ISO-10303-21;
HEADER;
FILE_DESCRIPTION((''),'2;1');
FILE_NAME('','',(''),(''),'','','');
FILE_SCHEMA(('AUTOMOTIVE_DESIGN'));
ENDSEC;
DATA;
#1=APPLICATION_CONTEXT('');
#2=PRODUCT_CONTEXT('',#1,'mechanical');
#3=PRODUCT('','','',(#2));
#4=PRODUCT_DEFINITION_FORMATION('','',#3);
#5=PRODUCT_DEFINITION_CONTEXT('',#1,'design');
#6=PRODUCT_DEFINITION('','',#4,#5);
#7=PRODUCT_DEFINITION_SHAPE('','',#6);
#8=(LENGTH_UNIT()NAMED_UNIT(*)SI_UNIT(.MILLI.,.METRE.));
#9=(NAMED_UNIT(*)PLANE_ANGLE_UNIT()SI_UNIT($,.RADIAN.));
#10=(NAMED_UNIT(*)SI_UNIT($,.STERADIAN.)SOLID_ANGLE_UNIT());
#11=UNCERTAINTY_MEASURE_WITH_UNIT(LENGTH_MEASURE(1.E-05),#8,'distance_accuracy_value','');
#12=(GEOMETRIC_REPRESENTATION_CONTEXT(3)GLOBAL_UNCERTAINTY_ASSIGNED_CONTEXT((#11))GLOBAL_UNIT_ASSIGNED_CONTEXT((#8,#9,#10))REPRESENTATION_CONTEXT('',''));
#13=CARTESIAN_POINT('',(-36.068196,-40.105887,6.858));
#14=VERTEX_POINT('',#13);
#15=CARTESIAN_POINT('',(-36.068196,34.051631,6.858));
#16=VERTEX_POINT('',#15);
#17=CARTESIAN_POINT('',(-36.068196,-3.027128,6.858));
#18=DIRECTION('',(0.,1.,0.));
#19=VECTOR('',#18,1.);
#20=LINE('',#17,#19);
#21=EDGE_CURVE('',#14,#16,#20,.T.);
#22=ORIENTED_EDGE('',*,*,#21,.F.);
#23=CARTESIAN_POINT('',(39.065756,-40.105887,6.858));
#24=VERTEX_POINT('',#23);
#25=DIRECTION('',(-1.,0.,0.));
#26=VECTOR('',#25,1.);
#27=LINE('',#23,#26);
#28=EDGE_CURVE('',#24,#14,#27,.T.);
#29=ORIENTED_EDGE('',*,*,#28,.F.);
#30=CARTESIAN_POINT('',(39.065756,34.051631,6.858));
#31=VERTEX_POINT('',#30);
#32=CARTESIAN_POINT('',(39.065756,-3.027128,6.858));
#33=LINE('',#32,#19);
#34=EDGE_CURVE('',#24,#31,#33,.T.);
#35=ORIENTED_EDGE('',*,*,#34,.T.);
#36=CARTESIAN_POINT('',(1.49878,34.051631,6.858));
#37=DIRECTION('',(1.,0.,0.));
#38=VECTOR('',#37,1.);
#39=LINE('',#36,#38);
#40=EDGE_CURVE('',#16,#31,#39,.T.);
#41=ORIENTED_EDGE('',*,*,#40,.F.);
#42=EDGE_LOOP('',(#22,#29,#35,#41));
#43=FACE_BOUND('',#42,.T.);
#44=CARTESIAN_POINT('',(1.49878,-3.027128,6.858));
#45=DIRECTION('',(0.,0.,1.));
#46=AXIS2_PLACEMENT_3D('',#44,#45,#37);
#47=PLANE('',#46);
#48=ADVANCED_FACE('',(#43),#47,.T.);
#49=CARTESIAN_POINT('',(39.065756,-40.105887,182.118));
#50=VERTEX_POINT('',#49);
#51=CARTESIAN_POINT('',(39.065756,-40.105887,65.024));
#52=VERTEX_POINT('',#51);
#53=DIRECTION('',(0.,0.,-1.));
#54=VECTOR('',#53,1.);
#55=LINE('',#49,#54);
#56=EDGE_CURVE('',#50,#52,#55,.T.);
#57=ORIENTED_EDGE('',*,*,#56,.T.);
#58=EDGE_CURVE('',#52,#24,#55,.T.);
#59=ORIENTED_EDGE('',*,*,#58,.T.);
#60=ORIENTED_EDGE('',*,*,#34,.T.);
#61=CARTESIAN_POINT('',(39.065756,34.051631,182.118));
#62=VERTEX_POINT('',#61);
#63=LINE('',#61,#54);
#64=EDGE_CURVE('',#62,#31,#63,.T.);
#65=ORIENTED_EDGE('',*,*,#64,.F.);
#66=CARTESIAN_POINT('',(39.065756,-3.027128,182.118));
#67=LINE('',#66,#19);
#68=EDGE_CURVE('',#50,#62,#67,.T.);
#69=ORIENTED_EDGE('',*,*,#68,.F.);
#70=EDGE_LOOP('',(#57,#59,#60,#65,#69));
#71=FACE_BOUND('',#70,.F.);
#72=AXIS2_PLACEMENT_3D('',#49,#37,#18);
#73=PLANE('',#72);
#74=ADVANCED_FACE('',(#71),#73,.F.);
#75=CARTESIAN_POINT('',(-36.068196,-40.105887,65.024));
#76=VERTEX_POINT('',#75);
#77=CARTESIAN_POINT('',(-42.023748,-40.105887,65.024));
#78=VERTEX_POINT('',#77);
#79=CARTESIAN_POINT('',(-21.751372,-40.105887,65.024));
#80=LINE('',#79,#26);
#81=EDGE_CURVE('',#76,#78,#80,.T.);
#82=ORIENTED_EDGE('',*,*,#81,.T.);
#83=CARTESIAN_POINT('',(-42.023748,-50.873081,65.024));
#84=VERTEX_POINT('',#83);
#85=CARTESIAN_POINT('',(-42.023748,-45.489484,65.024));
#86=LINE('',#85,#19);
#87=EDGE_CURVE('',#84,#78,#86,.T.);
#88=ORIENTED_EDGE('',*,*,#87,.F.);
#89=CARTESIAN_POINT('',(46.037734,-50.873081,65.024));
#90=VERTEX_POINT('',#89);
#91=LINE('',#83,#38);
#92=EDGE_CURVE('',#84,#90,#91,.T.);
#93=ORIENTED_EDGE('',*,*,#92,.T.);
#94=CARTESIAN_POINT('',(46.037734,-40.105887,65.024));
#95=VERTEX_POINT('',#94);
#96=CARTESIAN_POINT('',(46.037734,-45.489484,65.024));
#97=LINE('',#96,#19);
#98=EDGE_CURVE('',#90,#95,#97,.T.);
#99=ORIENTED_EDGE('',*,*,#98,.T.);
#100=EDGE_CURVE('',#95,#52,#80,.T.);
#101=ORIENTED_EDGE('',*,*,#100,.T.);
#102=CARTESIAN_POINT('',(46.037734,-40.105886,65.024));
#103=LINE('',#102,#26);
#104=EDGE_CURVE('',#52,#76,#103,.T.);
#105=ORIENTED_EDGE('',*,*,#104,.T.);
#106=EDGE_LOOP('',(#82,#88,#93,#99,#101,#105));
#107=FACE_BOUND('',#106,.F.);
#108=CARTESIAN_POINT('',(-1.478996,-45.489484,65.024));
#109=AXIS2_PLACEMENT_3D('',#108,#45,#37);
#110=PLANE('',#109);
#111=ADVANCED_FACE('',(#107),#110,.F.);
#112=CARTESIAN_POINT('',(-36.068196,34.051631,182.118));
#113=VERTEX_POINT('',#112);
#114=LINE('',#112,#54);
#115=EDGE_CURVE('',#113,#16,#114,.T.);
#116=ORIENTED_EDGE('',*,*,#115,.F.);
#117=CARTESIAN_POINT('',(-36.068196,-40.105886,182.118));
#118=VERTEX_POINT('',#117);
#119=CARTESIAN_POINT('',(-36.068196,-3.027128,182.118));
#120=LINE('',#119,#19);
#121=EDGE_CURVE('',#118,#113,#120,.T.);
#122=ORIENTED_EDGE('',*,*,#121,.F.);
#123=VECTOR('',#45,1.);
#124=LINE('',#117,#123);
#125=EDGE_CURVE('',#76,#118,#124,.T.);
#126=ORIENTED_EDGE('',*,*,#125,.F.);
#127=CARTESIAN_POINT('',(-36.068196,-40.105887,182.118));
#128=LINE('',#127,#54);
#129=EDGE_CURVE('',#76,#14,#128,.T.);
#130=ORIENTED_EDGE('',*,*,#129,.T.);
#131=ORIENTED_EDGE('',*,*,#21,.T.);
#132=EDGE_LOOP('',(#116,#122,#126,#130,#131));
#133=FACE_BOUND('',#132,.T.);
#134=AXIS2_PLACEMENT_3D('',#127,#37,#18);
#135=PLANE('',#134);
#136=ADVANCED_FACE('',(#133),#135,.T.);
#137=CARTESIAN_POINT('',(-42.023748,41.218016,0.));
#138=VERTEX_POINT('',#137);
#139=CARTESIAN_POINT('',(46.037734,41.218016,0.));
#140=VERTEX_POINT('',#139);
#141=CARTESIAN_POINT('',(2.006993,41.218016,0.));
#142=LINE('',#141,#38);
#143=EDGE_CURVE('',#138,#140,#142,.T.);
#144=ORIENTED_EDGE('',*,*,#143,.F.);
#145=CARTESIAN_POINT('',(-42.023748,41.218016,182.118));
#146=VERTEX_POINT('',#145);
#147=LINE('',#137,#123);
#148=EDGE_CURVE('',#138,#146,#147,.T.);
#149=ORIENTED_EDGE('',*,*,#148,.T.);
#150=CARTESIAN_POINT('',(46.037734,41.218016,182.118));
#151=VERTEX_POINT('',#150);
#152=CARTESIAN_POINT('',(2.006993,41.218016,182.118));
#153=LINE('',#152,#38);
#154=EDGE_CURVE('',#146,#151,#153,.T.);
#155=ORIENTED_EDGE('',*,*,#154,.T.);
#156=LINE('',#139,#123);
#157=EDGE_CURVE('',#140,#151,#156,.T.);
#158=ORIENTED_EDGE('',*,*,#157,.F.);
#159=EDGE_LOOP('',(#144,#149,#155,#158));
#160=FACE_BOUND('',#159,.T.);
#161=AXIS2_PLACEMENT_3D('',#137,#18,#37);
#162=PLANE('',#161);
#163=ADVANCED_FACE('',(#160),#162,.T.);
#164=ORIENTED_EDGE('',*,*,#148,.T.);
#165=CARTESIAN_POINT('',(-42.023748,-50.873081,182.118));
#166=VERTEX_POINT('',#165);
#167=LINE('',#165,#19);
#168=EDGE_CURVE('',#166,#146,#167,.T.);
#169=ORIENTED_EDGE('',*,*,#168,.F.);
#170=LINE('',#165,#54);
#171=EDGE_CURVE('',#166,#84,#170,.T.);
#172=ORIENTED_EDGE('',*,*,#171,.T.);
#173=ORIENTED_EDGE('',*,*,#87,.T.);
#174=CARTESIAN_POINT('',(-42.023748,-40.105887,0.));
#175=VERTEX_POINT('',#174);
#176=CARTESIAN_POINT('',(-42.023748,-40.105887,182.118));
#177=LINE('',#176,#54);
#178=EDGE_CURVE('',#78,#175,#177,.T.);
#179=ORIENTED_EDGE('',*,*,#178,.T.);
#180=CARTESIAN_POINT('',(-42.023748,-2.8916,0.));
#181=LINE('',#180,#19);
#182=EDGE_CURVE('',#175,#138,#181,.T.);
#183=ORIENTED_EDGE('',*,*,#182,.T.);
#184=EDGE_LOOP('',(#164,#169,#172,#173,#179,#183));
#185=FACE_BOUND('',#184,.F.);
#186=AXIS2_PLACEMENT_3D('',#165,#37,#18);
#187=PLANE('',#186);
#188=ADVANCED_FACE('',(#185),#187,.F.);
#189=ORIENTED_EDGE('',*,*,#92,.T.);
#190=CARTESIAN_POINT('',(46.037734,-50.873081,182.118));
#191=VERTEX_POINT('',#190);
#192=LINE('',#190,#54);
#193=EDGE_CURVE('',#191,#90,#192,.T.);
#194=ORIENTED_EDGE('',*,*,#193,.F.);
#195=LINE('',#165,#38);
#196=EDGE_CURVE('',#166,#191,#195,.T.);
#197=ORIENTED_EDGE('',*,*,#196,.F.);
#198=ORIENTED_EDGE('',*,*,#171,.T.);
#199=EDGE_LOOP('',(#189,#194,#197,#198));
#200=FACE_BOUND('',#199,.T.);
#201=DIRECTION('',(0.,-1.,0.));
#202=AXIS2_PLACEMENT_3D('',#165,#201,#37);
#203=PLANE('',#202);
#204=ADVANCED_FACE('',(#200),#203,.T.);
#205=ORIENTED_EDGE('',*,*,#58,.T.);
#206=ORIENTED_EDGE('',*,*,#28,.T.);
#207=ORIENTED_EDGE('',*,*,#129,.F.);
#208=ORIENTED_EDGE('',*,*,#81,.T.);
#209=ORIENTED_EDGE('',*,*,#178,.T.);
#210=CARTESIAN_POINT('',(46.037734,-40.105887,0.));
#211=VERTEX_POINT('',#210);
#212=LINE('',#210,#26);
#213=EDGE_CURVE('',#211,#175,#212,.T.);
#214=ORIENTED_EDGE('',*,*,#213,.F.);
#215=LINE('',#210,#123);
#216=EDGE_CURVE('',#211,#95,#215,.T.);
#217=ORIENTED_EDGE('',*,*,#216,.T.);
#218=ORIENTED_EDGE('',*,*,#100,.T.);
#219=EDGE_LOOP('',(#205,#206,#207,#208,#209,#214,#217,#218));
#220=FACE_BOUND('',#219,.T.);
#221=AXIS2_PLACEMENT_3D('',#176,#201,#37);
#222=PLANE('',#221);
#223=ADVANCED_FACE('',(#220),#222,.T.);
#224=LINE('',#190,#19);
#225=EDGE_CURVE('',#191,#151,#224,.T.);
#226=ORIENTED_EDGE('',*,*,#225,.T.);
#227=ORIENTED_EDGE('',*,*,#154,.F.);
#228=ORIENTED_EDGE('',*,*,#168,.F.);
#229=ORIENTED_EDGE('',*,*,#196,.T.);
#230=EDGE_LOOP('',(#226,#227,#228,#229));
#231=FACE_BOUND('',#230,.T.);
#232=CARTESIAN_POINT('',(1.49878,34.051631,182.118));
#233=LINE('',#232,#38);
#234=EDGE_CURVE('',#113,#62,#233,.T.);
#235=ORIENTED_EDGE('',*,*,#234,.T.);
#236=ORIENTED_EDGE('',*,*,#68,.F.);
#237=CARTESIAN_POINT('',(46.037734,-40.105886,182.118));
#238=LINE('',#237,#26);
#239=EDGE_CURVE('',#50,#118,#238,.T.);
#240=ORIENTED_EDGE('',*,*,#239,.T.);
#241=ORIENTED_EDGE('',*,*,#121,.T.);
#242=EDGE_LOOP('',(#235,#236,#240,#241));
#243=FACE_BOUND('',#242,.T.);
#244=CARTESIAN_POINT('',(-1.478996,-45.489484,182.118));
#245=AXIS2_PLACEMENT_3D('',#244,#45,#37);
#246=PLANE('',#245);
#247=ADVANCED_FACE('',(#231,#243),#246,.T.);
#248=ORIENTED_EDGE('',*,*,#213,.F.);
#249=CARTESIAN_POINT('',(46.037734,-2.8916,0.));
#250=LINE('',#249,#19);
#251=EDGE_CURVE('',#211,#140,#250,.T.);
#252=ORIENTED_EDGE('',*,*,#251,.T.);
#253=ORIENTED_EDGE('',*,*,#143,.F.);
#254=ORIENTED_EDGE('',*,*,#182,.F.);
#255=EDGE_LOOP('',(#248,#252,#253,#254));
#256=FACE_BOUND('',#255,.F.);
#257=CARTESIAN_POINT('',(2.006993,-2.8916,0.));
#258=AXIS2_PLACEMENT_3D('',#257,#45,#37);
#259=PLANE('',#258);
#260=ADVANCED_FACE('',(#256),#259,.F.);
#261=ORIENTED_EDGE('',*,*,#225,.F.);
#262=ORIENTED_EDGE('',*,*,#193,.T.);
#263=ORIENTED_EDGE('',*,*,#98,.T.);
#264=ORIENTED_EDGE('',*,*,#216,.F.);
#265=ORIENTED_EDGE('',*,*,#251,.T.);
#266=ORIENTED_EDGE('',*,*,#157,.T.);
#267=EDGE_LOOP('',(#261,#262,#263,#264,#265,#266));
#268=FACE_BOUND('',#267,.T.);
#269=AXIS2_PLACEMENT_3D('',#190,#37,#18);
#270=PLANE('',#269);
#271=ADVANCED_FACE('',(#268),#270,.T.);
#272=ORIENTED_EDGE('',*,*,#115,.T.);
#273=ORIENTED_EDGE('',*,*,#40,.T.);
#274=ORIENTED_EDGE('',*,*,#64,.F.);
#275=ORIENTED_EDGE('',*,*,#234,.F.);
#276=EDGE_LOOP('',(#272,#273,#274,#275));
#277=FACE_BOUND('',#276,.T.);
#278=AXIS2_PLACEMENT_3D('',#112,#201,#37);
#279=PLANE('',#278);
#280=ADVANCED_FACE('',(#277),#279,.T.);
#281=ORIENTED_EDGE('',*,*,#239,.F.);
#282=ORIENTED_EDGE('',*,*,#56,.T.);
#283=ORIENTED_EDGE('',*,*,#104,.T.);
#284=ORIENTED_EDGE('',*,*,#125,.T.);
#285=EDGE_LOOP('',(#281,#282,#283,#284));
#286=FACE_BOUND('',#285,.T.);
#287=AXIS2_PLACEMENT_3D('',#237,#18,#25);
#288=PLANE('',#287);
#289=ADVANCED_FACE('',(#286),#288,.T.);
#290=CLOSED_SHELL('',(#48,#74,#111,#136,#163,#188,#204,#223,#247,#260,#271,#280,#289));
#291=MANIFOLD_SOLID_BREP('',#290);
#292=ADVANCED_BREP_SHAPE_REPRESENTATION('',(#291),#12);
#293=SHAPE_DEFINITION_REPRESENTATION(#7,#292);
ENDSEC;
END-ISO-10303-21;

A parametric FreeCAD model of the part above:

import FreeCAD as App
import Part
import Sketcher

V = App.Vector
Q = App.Units.Quantity


def add_polygon(sketch, points):
    """Adds a closed chain of lines whose ends are joined by coincident constraints."""
    first, n = sketch.GeometryCount, len(points)
    for a, b in zip(points, points[1:] + points[:1]):
        sketch.addGeometry(Part.LineSegment(App.Vector(*a, 0), App.Vector(*b, 0)), False)
    for i in range(n):
        sketch.addConstraint(Sketcher.Constraint("Coincident", first + i, 2, first + (i + 1) % n, 1))

doc = App.newDocument("Part")
params = doc.addObject("Spreadsheet::Sheet", "Params")
for row, (alias, value) in enumerate([
    ("pad1_length", "7.17 in"),
    ("pocket1_length", "6.9 in"),
    ("pocket2_length", "7.21 in"),
    ("pocket3_length", "7.39 in"),
    ("pad2_length", "4.61 in"),
], start=1):
    params.set(f"A{row}", alias)
    params.set(f"B{row}", "=" + value)
    params.setAlias(f"B{row}", alias)

body = doc.addObject("PartDesign::Body", "Body")

sketch1 = doc.addObject("Sketcher::SketchObject", "Sketch")
body.addObject(sketch1)
sketch1.AttachmentSupport = (doc.XY_Plane, [""])
sketch1.MapMode = "FlatFace"
add_polygon(sketch1, [(-42, 41), (-42, -47), (46, -47), (46, 41)])
sketch1.addConstraint(Sketcher.Constraint("Vertical", 0))
sketch1.addConstraint(Sketcher.Constraint("Horizontal", 1))
sketch1.addConstraint(Sketcher.Constraint("Vertical", 2))
sketch1.addConstraint(Sketcher.Constraint("Horizontal", 3))
sketch1.addConstraint(Sketcher.Constraint("DistanceX", 1, 1, 1, 2, 88.061482))
sketch1.addConstraint(Sketcher.Constraint("DistanceY", 0, 2, 0, 1, 88.219233))
sketch1.addConstraint(Sketcher.Constraint("DistanceX", 0, 2, -1, 1, 42.023748))
sketch1.addConstraint(Sketcher.Constraint("DistanceY", 0, 2, -1, 1, 47.001216))
pad1 = doc.addObject("PartDesign::Pad", "Pad")
body.addObject(pad1)
pad1.Profile = sketch1
pad1.setExpression("Length", "Params.pad1_length")

sketch2 = doc.addObject("Sketcher::SketchObject", "Sketch001")
body.addObject(sketch2)
sketch2.AttachmentSupport = (doc.XY_Plane, [""])
sketch2.MapMode = "FlatFace"
sketch2.AttachmentOffset = App.Placement(V(0, 0, 7.17 * 25.4), App.Rotation())
add_polygon(sketch2, [(-36, 34), (-36, -40), (39, -40), (39, 34)])
sketch2.addConstraint(Sketcher.Constraint("Vertical", 0))
sketch2.addConstraint(Sketcher.Constraint("Horizontal", 1))
sketch2.addConstraint(Sketcher.Constraint("Vertical", 2))
sketch2.addConstraint(Sketcher.Constraint("Horizontal", 3))
sketch2.addConstraint(Sketcher.Constraint("DistanceY", 0, 2, 0, 1, 74.157518))
sketch2.addConstraint(Sketcher.Constraint("DistanceX", 1, 1, 1, 2, 75.133953))
sketch2.addConstraint(Sketcher.Constraint("DistanceY", -1, 1, 2, 2, 34.051631))
sketch2.addConstraint(Sketcher.Constraint("DistanceX", 0, 2, -1, 1, 36.068196))
pocket1 = doc.addObject("PartDesign::Pocket", "Pocket")
body.addObject(pocket1)
pocket1.Profile = sketch2
pocket1.setExpression("Length", "Params.pocket1_length")

sketch3 = doc.addObject("Sketcher::SketchObject", "Sketch002")
body.addObject(sketch3)
sketch3.AttachmentSupport = (doc.XY_Plane, [""])
sketch3.MapMode = "FlatFace"
sketch3.AttachmentOffset = App.Placement(V(0, 0, 7.17 * 25.4), App.Rotation())
add_polygon(sketch3, [(-42, -40), (-42, -47), (39, -47), (39, -40)])
sketch3.addConstraint(Sketcher.Constraint("Vertical", 0))
sketch3.addConstraint(Sketcher.Constraint("Horizontal", 1))
sketch3.addConstraint(Sketcher.Constraint("Vertical", 2))
sketch3.addConstraint(Sketcher.Constraint("Horizontal", 3))
sketch3.addConstraint(Sketcher.Constraint("DistanceX", 1, 1, 1, 2, Q("3.1925002 in")))
sketch3.addConstraint(Sketcher.Constraint("DistanceY", 0, 2, 0, 1, 6.89533))
sketch3.addConstraint(Sketcher.Constraint("DistanceX", 0, 2, -1, 1, 42.023748))
sketch3.addConstraint(Sketcher.Constraint("DistanceY", 0, 2, -1, 1, 47.001217))
pocket2 = doc.addObject("PartDesign::Pocket", "Pocket001")
body.addObject(pocket2)
pocket2.Profile = sketch3
pocket2.setExpression("Length", "Params.pocket2_length")

sketch4 = doc.addObject("Sketcher::SketchObject", "Sketch003")
body.addObject(sketch4)
sketch4.AttachmentSupport = (doc.XY_Plane, [""])
sketch4.MapMode = "FlatFace"
add_polygon(sketch4, [(39, -47), (39, -40), (46, -40), (46, -47)])
sketch4.addConstraint(Sketcher.Constraint("Vertical", 0))
sketch4.addConstraint(Sketcher.Constraint("Horizontal", 1))
sketch4.addConstraint(Sketcher.Constraint("Vertical", 2))
sketch4.addConstraint(Sketcher.Constraint("Horizontal", 3))
sketch4.addConstraint(Sketcher.Constraint("DistanceY", 0, 1, 0, 2, 6.89533))
sketch4.addConstraint(Sketcher.Constraint("DistanceX", 1, 1, 1, 2, 6.971978))
sketch4.addConstraint(Sketcher.Constraint("DistanceX", -1, 1, 0, 2, 39.065756))
sketch4.addConstraint(Sketcher.Constraint("DistanceY", 0, 2, -1, 1, 40.105887))
pocket3 = doc.addObject("PartDesign::Pocket", "Pocket002")
body.addObject(pocket3)
pocket3.Profile = sketch4
pocket3.setExpression("Length", "Params.pocket3_length")
pocket3.Reversed = True

sketch5 = doc.addObject("Sketcher::SketchObject", "Sketch004")
body.addObject(sketch5)
sketch5.AttachmentSupport = (doc.XY_Plane, [""])
sketch5.MapMode = "FlatFace"
sketch5.AttachmentOffset = App.Placement(V(0, 0, 7.17 * 25.4), App.Rotation())
add_polygon(sketch5, [(-42, -40), (-42, -51), (46, -51), (46, -40)])
sketch5.addConstraint(Sketcher.Constraint("Vertical", 0))
sketch5.addConstraint(Sketcher.Constraint("Horizontal", 1))
sketch5.addConstraint(Sketcher.Constraint("Vertical", 2))
sketch5.addConstraint(Sketcher.Constraint("Horizontal", 3))
sketch5.addConstraint(Sketcher.Constraint("DistanceX", 1, 1, 1, 2, 88.061482))
sketch5.addConstraint(Sketcher.Constraint("DistanceY", 0, 2, 0, 1, 10.767195))
sketch5.addConstraint(Sketcher.Constraint("DistanceY", 0, 2, -1, 1, 50.873081))
sketch5.addConstraint(Sketcher.Constraint("DistanceX", 0, 2, -1, 1, 42.023748))
pad2 = doc.addObject("PartDesign::Pad", "Pad001")
body.addObject(pad2)
pad2.Profile = sketch5
pad2.setExpression("Length", "Params.pad2_length")
pad2.Reversed = True

doc.recompute()
